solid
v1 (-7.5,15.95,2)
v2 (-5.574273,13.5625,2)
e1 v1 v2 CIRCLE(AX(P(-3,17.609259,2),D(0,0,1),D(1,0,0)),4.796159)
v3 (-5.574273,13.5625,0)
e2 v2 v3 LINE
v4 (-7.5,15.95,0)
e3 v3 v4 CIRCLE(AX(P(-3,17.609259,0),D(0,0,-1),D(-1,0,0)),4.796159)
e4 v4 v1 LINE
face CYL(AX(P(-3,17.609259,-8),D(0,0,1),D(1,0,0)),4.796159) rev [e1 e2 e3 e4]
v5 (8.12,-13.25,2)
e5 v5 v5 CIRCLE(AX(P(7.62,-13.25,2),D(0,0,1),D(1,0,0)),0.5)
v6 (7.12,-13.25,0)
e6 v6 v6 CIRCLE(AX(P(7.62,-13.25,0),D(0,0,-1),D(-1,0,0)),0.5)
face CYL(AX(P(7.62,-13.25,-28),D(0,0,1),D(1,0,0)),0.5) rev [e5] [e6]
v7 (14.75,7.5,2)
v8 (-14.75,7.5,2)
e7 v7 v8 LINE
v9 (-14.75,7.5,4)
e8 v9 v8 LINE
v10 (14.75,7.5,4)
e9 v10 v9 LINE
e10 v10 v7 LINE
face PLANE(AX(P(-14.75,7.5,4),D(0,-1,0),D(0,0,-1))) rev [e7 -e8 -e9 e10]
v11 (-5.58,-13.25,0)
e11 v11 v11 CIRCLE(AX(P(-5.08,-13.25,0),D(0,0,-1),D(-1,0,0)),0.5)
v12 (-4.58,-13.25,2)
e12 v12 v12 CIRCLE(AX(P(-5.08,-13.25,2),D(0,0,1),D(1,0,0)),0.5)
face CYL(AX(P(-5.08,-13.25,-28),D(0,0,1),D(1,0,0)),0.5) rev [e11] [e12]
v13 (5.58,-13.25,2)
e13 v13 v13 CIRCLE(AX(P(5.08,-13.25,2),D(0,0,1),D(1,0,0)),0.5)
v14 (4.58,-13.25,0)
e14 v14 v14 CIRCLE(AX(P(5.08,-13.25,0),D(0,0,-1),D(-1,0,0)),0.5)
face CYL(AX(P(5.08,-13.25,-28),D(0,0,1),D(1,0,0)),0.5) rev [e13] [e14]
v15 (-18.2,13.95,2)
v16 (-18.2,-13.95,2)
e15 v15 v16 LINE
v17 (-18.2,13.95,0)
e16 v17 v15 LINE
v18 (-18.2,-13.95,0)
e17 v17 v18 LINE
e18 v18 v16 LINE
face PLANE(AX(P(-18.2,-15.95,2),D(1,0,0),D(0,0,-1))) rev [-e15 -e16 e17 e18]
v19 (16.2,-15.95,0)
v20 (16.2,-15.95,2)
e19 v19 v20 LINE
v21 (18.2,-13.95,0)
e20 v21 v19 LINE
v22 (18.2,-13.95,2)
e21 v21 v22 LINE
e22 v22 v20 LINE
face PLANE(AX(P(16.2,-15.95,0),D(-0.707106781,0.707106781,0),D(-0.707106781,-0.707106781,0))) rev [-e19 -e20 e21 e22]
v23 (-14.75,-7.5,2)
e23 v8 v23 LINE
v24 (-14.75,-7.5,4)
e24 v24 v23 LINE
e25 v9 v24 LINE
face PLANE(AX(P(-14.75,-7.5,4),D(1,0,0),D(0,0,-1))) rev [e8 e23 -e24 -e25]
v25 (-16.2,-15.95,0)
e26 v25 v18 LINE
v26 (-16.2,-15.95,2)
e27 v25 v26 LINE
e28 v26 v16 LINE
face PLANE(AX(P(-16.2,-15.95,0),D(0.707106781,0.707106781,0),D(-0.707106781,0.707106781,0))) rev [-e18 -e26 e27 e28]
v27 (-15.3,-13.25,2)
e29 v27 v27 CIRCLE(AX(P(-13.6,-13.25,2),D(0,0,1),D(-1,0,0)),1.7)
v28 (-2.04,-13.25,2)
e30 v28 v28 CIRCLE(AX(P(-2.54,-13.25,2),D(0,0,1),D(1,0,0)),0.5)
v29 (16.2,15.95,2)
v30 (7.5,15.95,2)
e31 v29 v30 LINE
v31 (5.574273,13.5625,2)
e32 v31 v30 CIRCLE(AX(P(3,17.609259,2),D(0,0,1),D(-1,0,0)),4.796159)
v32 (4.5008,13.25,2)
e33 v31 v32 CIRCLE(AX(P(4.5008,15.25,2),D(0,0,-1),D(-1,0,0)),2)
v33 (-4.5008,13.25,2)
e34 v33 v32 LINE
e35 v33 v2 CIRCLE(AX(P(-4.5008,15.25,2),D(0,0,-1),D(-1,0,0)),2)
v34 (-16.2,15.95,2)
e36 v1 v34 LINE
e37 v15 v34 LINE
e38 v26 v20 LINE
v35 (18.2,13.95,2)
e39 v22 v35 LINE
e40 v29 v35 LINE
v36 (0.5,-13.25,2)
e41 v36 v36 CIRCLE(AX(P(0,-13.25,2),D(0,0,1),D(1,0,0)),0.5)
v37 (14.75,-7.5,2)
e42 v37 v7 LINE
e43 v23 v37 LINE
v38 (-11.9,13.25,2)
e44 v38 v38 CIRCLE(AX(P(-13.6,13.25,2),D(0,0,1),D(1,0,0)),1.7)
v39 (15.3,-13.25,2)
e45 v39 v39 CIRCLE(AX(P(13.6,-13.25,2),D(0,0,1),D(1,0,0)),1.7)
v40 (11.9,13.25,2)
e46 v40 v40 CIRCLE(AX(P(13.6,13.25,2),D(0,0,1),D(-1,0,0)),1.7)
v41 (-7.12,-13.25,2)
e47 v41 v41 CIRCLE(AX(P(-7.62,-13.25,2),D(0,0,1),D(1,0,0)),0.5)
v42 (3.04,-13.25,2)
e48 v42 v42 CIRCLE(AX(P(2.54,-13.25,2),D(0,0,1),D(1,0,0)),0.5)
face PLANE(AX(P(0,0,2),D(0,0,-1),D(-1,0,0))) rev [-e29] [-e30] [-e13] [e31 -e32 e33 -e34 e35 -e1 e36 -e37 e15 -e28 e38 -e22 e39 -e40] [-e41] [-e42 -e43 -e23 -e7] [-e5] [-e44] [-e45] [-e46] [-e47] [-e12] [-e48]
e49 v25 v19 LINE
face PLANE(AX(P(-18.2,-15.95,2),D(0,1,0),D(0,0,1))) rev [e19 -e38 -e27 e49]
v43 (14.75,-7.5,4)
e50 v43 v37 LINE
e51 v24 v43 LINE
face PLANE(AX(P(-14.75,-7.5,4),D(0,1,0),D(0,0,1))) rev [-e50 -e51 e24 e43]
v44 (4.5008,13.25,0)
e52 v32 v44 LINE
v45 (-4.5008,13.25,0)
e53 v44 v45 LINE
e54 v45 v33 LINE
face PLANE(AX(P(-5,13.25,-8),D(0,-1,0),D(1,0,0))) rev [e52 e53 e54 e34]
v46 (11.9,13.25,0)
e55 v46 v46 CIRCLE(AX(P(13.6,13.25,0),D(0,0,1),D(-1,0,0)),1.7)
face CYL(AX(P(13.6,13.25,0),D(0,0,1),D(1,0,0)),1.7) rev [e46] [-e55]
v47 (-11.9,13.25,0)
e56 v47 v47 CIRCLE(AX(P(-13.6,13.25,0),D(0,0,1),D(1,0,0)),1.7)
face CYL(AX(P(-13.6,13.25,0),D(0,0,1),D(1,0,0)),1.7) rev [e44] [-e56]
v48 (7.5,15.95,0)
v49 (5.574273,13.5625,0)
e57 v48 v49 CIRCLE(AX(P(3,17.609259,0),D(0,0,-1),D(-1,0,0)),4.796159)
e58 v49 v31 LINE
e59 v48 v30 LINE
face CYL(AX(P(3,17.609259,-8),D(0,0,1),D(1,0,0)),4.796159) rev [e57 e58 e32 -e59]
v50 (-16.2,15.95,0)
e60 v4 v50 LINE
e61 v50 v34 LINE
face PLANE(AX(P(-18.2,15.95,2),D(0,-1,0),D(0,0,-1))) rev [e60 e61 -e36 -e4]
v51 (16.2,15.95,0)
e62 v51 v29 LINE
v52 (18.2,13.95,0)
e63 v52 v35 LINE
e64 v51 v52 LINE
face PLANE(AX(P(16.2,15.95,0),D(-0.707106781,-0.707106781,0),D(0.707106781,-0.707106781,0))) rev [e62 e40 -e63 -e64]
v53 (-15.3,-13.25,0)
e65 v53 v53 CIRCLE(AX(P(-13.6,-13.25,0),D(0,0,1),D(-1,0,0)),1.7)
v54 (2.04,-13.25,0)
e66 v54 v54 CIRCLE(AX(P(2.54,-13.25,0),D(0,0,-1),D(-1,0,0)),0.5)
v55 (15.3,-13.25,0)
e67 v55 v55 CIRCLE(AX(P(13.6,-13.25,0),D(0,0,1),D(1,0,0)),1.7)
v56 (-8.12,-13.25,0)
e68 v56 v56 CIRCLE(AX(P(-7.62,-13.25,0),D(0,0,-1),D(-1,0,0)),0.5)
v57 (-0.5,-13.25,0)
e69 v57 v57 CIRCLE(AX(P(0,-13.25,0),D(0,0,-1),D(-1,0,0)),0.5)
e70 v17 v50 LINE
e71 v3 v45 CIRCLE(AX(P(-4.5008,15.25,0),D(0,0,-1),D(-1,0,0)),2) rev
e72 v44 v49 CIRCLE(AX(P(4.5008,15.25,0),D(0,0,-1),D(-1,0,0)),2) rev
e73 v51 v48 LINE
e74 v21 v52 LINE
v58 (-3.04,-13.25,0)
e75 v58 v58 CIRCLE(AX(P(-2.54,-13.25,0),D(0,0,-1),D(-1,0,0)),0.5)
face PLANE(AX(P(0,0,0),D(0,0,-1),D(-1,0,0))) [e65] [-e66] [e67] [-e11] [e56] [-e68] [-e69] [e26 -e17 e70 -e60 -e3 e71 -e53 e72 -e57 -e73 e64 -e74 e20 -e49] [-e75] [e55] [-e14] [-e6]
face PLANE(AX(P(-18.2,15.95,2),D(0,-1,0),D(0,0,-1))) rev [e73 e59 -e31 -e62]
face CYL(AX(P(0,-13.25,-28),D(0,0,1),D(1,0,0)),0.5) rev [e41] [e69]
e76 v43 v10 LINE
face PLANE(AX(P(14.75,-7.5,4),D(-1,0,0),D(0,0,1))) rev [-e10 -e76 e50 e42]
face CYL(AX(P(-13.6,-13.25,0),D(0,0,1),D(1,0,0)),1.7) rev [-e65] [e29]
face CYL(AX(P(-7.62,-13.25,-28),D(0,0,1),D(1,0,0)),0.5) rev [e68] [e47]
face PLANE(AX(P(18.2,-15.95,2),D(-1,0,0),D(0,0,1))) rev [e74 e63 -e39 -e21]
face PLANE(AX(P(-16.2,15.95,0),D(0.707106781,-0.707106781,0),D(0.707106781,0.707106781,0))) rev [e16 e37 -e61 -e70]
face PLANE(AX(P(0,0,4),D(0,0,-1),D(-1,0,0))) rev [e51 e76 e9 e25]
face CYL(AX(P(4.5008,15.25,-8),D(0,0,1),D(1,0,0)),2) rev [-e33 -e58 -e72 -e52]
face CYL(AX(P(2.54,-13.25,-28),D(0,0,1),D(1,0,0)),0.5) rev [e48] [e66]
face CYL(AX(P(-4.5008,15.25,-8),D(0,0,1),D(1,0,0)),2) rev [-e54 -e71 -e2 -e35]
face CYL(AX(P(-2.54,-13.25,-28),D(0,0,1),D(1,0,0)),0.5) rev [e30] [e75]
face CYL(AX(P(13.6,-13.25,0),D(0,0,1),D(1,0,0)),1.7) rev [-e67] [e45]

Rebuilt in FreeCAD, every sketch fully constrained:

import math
import FreeCAD as App
import Part
import Sketcher
Q = App.Units.Quantity


def edges_at(feature, points):
    """Names of the edges that pass closest to the given points."""
    edges = feature.Shape.Edges
    near = lambda p: min(range(len(edges)), key=lambda i: edges[i].distToShape(Part.Vertex(*p))[0])
    return sorted({f"Edge{near(p) + 1}" for p in points})


def add_polygon(sketch, points):
    """Adds a closed chain of lines whose ends are joined by coincident constraints."""
    first, n = sketch.GeometryCount, len(points)
    for a, b in zip(points, points[1:] + points[:1]):
        sketch.addGeometry(Part.LineSegment(App.Vector(*a, 0), App.Vector(*b, 0)), False)
    for i in range(n):
        sketch.addConstraint(Sketcher.Constraint("Coincident", first + i, 2, first + (i + 1) % n, 1))

doc = App.newDocument("Part")
body = doc.addObject("PartDesign::Body", "Body")

sketch1 = doc.addObject("Sketcher::SketchObject", "Sketch")
body.addObject(sketch1)
sketch1.AttachmentSupport = (doc.XY_Plane, [""])
sketch1.MapMode = "FlatFace"
add_polygon(sketch1, [(-18, 16), (-18, -16), (18, -16), (18, 16)])
sketch1.addConstraint(Sketcher.Constraint("Vertical", 0))
sketch1.addConstraint(Sketcher.Constraint("Horizontal", 1))
sketch1.addConstraint(Sketcher.Constraint("Vertical", 2))
sketch1.addConstraint(Sketcher.Constraint("Horizontal", 3))
sketch1.addConstraint(Sketcher.Constraint("Symmetric", 0, 2, 2, 2, -1, 1))
sketch1.addConstraint(Sketcher.Constraint("DistanceX", 1, 1, 1, 2, Q("36.4 mm")))
sketch1.addConstraint(Sketcher.Constraint("DistanceY", 0, 2, 0, 1, Q("31.9 mm")))
pad1 = doc.addObject("PartDesign::Pad", "Pad")
body.addObject(pad1)
pad1.Profile = sketch1
pad1.Length = 2

sketch2 = doc.addObject("Sketcher::SketchObject", "Sketch001")
body.addObject(sketch2)
sketch2.AttachmentSupport = (doc.XY_Plane, [""])
sketch2.MapMode = "FlatFace"
sketch2.AttachmentOffset = App.Placement(App.Vector(0, 0, 2), App.Rotation())
add_polygon(sketch2, [(-15, 8), (-15, -8), (15, -8), (15, 8)])
sketch2.addConstraint(Sketcher.Constraint("Vertical", 0))
sketch2.addConstraint(Sketcher.Constraint("Horizontal", 1))
sketch2.addConstraint(Sketcher.Constraint("Vertical", 2))
sketch2.addConstraint(Sketcher.Constraint("Horizontal", 3))
sketch2.addConstraint(Sketcher.Constraint("Symmetric", 0, 2, 2, 2, -1, 1))
sketch2.addConstraint(Sketcher.Constraint("DistanceY", 0, 2, 0, 1, Q("15 mm")))
sketch2.addConstraint(Sketcher.Constraint("DistanceX", 1, 1, 1, 2, Q("29.5 mm")))
pad2 = doc.addObject("PartDesign::Pad", "Pad001")
body.addObject(pad2)
pad2.Profile = sketch2
pad2.Length = 2

sketch3 = doc.addObject("Sketcher::SketchObject", "Sketch002")
body.addObject(sketch3)
sketch3.AttachmentSupport = (doc.XY_Plane, [""])
sketch3.MapMode = "FlatFace"
sketch3.AttachmentOffset = App.Placement(App.Vector(0, 0, 2), App.Rotation())
sketch3.addGeometry(Part.Circle(App.Vector(-13.6, 13.2, 0), App.Vector(0, 0, 1), 1.7), False)
sketch3.addGeometry(Part.Circle(App.Vector(13.6, 13.2, 0), App.Vector(0, 0, 1), 1.7), False)
sketch3.addGeometry(Part.Circle(App.Vector(13.6, -13.2, 0), App.Vector(0, 0, 1), 1.7), False)
sketch3.addGeometry(Part.Circle(App.Vector(-13.6, -13.2, 0), App.Vector(0, 0, 1), 1.7), False)
sketch3.addConstraint(Sketcher.Constraint("Equal", 0, 1))
sketch3.addConstraint(Sketcher.Constraint("Equal", 1, 2))
sketch3.addConstraint(Sketcher.Constraint("Equal", 2, 3))
sketch3.addConstraint(Sketcher.Constraint("Symmetric", 0, 3, 2, 3, -1, 1))
sketch3.addConstraint(Sketcher.Constraint("Symmetric", 1, 3, 3, 3, -1, 1))
sketch3.addConstraint(Sketcher.Constraint("Symmetric", 0, 3, 1, 3, -2))
sketch3.addConstraint(Sketcher.Constraint("Diameter", 0, Q("3.4 mm")))
sketch3.addConstraint(Sketcher.Constraint("DistanceX", 0, 3, -1, 1, Q("13.6 mm")))
sketch3.addConstraint(Sketcher.Constraint("DistanceY", 2, 3, 1, 3, Q("26.5 mm")))
pocket1 = doc.addObject("PartDesign::Pocket", "Pocket")
body.addObject(pocket1)
pocket1.Profile = sketch3
pocket1.Length = 2

sketch4 = doc.addObject("Sketcher::SketchObject", "Sketch003")
body.addObject(sketch4)
sketch4.AttachmentSupport = (doc.XY_Plane, [""])
sketch4.MapMode = "FlatFace"
sketch4.AttachmentOffset = App.Placement(App.Vector(0, 0, 2), App.Rotation())
add_polygon(sketch4, [(-18.2, 13.9), (-16.2, 15.9), (-18.2, 15.9)])
add_polygon(sketch4, [(18.2, 13.9), (18.2, 15.9), (16.2, 15.9)])
add_polygon(sketch4, [(18.2, -13.9), (16.2, -15.9), (18.2, -15.9)])
add_polygon(sketch4, [(-18.2, -13.9), (-18.2, -15.9), (-16.2, -15.9)])
sketch4.addConstraint(Sketcher.Constraint("Horizontal", 1))
sketch4.addConstraint(Sketcher.Constraint("Vertical", 2))
sketch4.addConstraint(Sketcher.Constraint("Vertical", 3))
sketch4.addConstraint(Sketcher.Constraint("Horizontal", 4))
sketch4.addConstraint(Sketcher.Constraint("Horizontal", 7))
sketch4.addConstraint(Sketcher.Constraint("Vertical", 8))
sketch4.addConstraint(Sketcher.Constraint("Vertical", 9))
sketch4.addConstraint(Sketcher.Constraint("Horizontal", 10))
sketch4.addConstraint(Sketcher.Constraint("Symmetric", 0, 2, 6, 2, -1, 1))
sketch4.addConstraint(Sketcher.Constraint("Symmetric", 2, 2, 8, 2, -1, 1))
sketch4.addConstraint(Sketcher.Constraint("Symmetric", 3, 2, 9, 2, -1, 1))
sketch4.addConstraint(Sketcher.Constraint("Symmetric", 1, 2, 3, 2, -2))
sketch4.addConstraint(Sketcher.Constraint("Perpendicular", 0, 5))
sketch4.addConstraint(Sketcher.Constraint("Perpendicular", 6, 11))
sketch4.addConstraint(Sketcher.Constraint("Horizontal", 2, 2, 5, 2))
sketch4.addConstraint(Sketcher.Constraint("Horizontal", 8, 2, 11, 2))
sketch4.addConstraint(Sketcher.Constraint("Vertical", 4, 2, 6, 2))
sketch4.addConstraint(Sketcher.Constraint("DistanceX", 1, 2, 1, 1, Q("2 mm")))
sketch4.addConstraint(Sketcher.Constraint("DistanceX", 0, 2, -1, 1, Q("16.2 mm")))
sketch4.addConstraint(Sketcher.Constraint("DistanceY", 6, 2, 5, 2, Q("29.9 mm")))
pocket2 = doc.addObject("PartDesign::Pocket", "Pocket001")
body.addObject(pocket2)
pocket2.Profile = sketch4
pocket2.Length = 2

sketch5 = doc.addObject("Sketcher::SketchObject", "Sketch004")
body.addObject(sketch5)
sketch5.AttachmentSupport = (doc.XY_Plane, [""])
sketch5.MapMode = "FlatFace"
sketch5.AttachmentOffset = App.Placement(App.Vector(0, 0, 2), App.Rotation())
sketch5.addGeometry(Part.Circle(App.Vector(-7.6, -13.2, 0), App.Vector(0, 0, 1), 0.5), False)
sketch5.addGeometry(Part.Circle(App.Vector(-5.1, -13.2, 0), App.Vector(0, 0, 1), 0.5), False)
sketch5.addGeometry(Part.Circle(App.Vector(-2.5, -13.2, 0), App.Vector(0, 0, 1), 0.5), False)
sketch5.addGeometry(Part.Circle(App.Vector(0, -13.2, 0), App.Vector(0, 0, 1), 0.5), False)
sketch5.addGeometry(Part.Circle(App.Vector(2.5, -13.2, 0), App.Vector(0, 0, 1), 0.5), False)
sketch5.addGeometry(Part.Circle(App.Vector(5.1, -13.2, 0), App.Vector(0, 0, 1), 0.5), False)
sketch5.addGeometry(Part.Circle(App.Vector(7.6, -13.2, 0), App.Vector(0, 0, 1), 0.5), False)
sketch5.addConstraint(Sketcher.Constraint("Equal", 0, 1))
sketch5.addConstraint(Sketcher.Constraint("Equal", 1, 2))
sketch5.addConstraint(Sketcher.Constraint("Equal", 2, 3))
sketch5.addConstraint(Sketcher.Constraint("Equal", 3, 4))
sketch5.addConstraint(Sketcher.Constraint("Equal", 4, 5))
sketch5.addConstraint(Sketcher.Constraint("Equal", 5, 6))
sketch5.addConstraint(Sketcher.Constraint("Symmetric", 2, 3, 4, 3, -2))
sketch5.addConstraint(Sketcher.Constraint("Symmetric", 1, 3, 5, 3, -2))
sketch5.addConstraint(Sketcher.Constraint("Symmetric", 0, 3, 6, 3, -2))
sketch5.addConstraint(Sketcher.Constraint("PointOnObject", 3, 3, -2))
sketch5.addConstraint(Sketcher.Constraint("Horizontal", 0, 3, 1, 3))
sketch5.addConstraint(Sketcher.Constraint("Horizontal", 1, 3, 2, 3))
sketch5.addConstraint(Sketcher.Constraint("Horizontal", 2, 3, 3, 3))
sketch5.addConstraint(Sketcher.Constraint("Diameter", 0, Q("1 mm")))
sketch5.addConstraint(Sketcher.Constraint("DistanceX", 0, 3, 5, 3, Q("12.7 mm")))
sketch5.addConstraint(Sketcher.Constraint("DistanceX", 0, 3, -1, 1, Q("7.62 mm")))
sketch5.addConstraint(Sketcher.Constraint("DistanceY", 0, 3, -1, 1, Q("13.25 mm")))
sketch5.addConstraint(Sketcher.Constraint("DistanceX", 2, 3, -1, 1, Q("2.54 mm")))
pocket3 = doc.addObject("PartDesign::Pocket", "Pocket002")
body.addObject(pocket3)
pocket3.Profile = sketch5
pocket3.Length = 30

sketch6 = doc.addObject("Sketcher::SketchObject", "Sketch005")
body.addObject(sketch6)
sketch6.AttachmentSupport = (doc.XY_Plane, [""])
sketch6.MapMode = "FlatFace"
sketch6.AttachmentOffset = App.Placement(App.Vector(0, 0, 2), App.Rotation())
sketch6.addGeometry(Part.LineSegment(App.Vector(-5, 13.2, 0), App.Vector(5, 13.2, 0)), False)
sketch6.addGeometry(Part.ArcOfCircle(Part.Circle(App.Vector(3, 17.6, 0), App.Vector(0, 0, 1), 4.8), math.radians(-65), math.radians(-20)), False)
sketch6.addGeometry(Part.LineSegment(App.Vector(7.5, 15.9, 0), App.Vector(-7.5, 15.9, 0)), False)
sketch6.addGeometry(Part.ArcOfCircle(Part.Circle(App.Vector(-3, 17.6, 0), App.Vector(0, 0, 1), 4.8), math.radians(-160), math.radians(-115)), False)
sketch6.addConstraint(Sketcher.Constraint("Coincident", 0, 2, 1, 1))
sketch6.addConstraint(Sketcher.Constraint("Coincident", 1, 2, 2, 1))
sketch6.addConstraint(Sketcher.Constraint("Coincident", 2, 2, 3, 1))
sketch6.addConstraint(Sketcher.Constraint("Coincident", 3, 2, 0, 1))
sketch6.addConstraint(Sketcher.Constraint("Horizontal", 0))
sketch6.addConstraint(Sketcher.Constraint("Horizontal", 2))
sketch6.addConstraint(Sketcher.Constraint("Equal", 1, 3))
sketch6.addConstraint(Sketcher.Constraint("Symmetric", 1, 3, 3, 3, -2))
sketch6.addConstraint(Sketcher.Constraint("DistanceX", 0, 1, 0, 2, Q("10 mm")))
sketch6.addConstraint(Sketcher.Constraint("DistanceX", 2, 2, 2, 1, Q("15 mm")))
sketch6.addConstraint(Sketcher.Constraint("DistanceX", -1, 1, 1, 3, Q("3 mm")))
sketch6.addConstraint(Sketcher.Constraint("DistanceY", 0, 2, 1, 2, Q("2.7 mm")))
sketch6.addConstraint(Sketcher.Constraint("DistanceY", -1, 1, 0, 2, Q("13.25 mm")))
pocket4 = doc.addObject("PartDesign::Pocket", "Pocket003")
body.addObject(pocket4)
pocket4.Profile = sketch6
pocket4.Length = 10
doc.recompute()

fillet = doc.addObject("PartDesign::Fillet", "Fillet")
body.addObject(fillet)
fillet.Base = (pocket4, edges_at(pocket4, [(-5, 13.25, 1), (5, 13.25, 1)]))
fillet.Radius = 2

doc.recompute()
